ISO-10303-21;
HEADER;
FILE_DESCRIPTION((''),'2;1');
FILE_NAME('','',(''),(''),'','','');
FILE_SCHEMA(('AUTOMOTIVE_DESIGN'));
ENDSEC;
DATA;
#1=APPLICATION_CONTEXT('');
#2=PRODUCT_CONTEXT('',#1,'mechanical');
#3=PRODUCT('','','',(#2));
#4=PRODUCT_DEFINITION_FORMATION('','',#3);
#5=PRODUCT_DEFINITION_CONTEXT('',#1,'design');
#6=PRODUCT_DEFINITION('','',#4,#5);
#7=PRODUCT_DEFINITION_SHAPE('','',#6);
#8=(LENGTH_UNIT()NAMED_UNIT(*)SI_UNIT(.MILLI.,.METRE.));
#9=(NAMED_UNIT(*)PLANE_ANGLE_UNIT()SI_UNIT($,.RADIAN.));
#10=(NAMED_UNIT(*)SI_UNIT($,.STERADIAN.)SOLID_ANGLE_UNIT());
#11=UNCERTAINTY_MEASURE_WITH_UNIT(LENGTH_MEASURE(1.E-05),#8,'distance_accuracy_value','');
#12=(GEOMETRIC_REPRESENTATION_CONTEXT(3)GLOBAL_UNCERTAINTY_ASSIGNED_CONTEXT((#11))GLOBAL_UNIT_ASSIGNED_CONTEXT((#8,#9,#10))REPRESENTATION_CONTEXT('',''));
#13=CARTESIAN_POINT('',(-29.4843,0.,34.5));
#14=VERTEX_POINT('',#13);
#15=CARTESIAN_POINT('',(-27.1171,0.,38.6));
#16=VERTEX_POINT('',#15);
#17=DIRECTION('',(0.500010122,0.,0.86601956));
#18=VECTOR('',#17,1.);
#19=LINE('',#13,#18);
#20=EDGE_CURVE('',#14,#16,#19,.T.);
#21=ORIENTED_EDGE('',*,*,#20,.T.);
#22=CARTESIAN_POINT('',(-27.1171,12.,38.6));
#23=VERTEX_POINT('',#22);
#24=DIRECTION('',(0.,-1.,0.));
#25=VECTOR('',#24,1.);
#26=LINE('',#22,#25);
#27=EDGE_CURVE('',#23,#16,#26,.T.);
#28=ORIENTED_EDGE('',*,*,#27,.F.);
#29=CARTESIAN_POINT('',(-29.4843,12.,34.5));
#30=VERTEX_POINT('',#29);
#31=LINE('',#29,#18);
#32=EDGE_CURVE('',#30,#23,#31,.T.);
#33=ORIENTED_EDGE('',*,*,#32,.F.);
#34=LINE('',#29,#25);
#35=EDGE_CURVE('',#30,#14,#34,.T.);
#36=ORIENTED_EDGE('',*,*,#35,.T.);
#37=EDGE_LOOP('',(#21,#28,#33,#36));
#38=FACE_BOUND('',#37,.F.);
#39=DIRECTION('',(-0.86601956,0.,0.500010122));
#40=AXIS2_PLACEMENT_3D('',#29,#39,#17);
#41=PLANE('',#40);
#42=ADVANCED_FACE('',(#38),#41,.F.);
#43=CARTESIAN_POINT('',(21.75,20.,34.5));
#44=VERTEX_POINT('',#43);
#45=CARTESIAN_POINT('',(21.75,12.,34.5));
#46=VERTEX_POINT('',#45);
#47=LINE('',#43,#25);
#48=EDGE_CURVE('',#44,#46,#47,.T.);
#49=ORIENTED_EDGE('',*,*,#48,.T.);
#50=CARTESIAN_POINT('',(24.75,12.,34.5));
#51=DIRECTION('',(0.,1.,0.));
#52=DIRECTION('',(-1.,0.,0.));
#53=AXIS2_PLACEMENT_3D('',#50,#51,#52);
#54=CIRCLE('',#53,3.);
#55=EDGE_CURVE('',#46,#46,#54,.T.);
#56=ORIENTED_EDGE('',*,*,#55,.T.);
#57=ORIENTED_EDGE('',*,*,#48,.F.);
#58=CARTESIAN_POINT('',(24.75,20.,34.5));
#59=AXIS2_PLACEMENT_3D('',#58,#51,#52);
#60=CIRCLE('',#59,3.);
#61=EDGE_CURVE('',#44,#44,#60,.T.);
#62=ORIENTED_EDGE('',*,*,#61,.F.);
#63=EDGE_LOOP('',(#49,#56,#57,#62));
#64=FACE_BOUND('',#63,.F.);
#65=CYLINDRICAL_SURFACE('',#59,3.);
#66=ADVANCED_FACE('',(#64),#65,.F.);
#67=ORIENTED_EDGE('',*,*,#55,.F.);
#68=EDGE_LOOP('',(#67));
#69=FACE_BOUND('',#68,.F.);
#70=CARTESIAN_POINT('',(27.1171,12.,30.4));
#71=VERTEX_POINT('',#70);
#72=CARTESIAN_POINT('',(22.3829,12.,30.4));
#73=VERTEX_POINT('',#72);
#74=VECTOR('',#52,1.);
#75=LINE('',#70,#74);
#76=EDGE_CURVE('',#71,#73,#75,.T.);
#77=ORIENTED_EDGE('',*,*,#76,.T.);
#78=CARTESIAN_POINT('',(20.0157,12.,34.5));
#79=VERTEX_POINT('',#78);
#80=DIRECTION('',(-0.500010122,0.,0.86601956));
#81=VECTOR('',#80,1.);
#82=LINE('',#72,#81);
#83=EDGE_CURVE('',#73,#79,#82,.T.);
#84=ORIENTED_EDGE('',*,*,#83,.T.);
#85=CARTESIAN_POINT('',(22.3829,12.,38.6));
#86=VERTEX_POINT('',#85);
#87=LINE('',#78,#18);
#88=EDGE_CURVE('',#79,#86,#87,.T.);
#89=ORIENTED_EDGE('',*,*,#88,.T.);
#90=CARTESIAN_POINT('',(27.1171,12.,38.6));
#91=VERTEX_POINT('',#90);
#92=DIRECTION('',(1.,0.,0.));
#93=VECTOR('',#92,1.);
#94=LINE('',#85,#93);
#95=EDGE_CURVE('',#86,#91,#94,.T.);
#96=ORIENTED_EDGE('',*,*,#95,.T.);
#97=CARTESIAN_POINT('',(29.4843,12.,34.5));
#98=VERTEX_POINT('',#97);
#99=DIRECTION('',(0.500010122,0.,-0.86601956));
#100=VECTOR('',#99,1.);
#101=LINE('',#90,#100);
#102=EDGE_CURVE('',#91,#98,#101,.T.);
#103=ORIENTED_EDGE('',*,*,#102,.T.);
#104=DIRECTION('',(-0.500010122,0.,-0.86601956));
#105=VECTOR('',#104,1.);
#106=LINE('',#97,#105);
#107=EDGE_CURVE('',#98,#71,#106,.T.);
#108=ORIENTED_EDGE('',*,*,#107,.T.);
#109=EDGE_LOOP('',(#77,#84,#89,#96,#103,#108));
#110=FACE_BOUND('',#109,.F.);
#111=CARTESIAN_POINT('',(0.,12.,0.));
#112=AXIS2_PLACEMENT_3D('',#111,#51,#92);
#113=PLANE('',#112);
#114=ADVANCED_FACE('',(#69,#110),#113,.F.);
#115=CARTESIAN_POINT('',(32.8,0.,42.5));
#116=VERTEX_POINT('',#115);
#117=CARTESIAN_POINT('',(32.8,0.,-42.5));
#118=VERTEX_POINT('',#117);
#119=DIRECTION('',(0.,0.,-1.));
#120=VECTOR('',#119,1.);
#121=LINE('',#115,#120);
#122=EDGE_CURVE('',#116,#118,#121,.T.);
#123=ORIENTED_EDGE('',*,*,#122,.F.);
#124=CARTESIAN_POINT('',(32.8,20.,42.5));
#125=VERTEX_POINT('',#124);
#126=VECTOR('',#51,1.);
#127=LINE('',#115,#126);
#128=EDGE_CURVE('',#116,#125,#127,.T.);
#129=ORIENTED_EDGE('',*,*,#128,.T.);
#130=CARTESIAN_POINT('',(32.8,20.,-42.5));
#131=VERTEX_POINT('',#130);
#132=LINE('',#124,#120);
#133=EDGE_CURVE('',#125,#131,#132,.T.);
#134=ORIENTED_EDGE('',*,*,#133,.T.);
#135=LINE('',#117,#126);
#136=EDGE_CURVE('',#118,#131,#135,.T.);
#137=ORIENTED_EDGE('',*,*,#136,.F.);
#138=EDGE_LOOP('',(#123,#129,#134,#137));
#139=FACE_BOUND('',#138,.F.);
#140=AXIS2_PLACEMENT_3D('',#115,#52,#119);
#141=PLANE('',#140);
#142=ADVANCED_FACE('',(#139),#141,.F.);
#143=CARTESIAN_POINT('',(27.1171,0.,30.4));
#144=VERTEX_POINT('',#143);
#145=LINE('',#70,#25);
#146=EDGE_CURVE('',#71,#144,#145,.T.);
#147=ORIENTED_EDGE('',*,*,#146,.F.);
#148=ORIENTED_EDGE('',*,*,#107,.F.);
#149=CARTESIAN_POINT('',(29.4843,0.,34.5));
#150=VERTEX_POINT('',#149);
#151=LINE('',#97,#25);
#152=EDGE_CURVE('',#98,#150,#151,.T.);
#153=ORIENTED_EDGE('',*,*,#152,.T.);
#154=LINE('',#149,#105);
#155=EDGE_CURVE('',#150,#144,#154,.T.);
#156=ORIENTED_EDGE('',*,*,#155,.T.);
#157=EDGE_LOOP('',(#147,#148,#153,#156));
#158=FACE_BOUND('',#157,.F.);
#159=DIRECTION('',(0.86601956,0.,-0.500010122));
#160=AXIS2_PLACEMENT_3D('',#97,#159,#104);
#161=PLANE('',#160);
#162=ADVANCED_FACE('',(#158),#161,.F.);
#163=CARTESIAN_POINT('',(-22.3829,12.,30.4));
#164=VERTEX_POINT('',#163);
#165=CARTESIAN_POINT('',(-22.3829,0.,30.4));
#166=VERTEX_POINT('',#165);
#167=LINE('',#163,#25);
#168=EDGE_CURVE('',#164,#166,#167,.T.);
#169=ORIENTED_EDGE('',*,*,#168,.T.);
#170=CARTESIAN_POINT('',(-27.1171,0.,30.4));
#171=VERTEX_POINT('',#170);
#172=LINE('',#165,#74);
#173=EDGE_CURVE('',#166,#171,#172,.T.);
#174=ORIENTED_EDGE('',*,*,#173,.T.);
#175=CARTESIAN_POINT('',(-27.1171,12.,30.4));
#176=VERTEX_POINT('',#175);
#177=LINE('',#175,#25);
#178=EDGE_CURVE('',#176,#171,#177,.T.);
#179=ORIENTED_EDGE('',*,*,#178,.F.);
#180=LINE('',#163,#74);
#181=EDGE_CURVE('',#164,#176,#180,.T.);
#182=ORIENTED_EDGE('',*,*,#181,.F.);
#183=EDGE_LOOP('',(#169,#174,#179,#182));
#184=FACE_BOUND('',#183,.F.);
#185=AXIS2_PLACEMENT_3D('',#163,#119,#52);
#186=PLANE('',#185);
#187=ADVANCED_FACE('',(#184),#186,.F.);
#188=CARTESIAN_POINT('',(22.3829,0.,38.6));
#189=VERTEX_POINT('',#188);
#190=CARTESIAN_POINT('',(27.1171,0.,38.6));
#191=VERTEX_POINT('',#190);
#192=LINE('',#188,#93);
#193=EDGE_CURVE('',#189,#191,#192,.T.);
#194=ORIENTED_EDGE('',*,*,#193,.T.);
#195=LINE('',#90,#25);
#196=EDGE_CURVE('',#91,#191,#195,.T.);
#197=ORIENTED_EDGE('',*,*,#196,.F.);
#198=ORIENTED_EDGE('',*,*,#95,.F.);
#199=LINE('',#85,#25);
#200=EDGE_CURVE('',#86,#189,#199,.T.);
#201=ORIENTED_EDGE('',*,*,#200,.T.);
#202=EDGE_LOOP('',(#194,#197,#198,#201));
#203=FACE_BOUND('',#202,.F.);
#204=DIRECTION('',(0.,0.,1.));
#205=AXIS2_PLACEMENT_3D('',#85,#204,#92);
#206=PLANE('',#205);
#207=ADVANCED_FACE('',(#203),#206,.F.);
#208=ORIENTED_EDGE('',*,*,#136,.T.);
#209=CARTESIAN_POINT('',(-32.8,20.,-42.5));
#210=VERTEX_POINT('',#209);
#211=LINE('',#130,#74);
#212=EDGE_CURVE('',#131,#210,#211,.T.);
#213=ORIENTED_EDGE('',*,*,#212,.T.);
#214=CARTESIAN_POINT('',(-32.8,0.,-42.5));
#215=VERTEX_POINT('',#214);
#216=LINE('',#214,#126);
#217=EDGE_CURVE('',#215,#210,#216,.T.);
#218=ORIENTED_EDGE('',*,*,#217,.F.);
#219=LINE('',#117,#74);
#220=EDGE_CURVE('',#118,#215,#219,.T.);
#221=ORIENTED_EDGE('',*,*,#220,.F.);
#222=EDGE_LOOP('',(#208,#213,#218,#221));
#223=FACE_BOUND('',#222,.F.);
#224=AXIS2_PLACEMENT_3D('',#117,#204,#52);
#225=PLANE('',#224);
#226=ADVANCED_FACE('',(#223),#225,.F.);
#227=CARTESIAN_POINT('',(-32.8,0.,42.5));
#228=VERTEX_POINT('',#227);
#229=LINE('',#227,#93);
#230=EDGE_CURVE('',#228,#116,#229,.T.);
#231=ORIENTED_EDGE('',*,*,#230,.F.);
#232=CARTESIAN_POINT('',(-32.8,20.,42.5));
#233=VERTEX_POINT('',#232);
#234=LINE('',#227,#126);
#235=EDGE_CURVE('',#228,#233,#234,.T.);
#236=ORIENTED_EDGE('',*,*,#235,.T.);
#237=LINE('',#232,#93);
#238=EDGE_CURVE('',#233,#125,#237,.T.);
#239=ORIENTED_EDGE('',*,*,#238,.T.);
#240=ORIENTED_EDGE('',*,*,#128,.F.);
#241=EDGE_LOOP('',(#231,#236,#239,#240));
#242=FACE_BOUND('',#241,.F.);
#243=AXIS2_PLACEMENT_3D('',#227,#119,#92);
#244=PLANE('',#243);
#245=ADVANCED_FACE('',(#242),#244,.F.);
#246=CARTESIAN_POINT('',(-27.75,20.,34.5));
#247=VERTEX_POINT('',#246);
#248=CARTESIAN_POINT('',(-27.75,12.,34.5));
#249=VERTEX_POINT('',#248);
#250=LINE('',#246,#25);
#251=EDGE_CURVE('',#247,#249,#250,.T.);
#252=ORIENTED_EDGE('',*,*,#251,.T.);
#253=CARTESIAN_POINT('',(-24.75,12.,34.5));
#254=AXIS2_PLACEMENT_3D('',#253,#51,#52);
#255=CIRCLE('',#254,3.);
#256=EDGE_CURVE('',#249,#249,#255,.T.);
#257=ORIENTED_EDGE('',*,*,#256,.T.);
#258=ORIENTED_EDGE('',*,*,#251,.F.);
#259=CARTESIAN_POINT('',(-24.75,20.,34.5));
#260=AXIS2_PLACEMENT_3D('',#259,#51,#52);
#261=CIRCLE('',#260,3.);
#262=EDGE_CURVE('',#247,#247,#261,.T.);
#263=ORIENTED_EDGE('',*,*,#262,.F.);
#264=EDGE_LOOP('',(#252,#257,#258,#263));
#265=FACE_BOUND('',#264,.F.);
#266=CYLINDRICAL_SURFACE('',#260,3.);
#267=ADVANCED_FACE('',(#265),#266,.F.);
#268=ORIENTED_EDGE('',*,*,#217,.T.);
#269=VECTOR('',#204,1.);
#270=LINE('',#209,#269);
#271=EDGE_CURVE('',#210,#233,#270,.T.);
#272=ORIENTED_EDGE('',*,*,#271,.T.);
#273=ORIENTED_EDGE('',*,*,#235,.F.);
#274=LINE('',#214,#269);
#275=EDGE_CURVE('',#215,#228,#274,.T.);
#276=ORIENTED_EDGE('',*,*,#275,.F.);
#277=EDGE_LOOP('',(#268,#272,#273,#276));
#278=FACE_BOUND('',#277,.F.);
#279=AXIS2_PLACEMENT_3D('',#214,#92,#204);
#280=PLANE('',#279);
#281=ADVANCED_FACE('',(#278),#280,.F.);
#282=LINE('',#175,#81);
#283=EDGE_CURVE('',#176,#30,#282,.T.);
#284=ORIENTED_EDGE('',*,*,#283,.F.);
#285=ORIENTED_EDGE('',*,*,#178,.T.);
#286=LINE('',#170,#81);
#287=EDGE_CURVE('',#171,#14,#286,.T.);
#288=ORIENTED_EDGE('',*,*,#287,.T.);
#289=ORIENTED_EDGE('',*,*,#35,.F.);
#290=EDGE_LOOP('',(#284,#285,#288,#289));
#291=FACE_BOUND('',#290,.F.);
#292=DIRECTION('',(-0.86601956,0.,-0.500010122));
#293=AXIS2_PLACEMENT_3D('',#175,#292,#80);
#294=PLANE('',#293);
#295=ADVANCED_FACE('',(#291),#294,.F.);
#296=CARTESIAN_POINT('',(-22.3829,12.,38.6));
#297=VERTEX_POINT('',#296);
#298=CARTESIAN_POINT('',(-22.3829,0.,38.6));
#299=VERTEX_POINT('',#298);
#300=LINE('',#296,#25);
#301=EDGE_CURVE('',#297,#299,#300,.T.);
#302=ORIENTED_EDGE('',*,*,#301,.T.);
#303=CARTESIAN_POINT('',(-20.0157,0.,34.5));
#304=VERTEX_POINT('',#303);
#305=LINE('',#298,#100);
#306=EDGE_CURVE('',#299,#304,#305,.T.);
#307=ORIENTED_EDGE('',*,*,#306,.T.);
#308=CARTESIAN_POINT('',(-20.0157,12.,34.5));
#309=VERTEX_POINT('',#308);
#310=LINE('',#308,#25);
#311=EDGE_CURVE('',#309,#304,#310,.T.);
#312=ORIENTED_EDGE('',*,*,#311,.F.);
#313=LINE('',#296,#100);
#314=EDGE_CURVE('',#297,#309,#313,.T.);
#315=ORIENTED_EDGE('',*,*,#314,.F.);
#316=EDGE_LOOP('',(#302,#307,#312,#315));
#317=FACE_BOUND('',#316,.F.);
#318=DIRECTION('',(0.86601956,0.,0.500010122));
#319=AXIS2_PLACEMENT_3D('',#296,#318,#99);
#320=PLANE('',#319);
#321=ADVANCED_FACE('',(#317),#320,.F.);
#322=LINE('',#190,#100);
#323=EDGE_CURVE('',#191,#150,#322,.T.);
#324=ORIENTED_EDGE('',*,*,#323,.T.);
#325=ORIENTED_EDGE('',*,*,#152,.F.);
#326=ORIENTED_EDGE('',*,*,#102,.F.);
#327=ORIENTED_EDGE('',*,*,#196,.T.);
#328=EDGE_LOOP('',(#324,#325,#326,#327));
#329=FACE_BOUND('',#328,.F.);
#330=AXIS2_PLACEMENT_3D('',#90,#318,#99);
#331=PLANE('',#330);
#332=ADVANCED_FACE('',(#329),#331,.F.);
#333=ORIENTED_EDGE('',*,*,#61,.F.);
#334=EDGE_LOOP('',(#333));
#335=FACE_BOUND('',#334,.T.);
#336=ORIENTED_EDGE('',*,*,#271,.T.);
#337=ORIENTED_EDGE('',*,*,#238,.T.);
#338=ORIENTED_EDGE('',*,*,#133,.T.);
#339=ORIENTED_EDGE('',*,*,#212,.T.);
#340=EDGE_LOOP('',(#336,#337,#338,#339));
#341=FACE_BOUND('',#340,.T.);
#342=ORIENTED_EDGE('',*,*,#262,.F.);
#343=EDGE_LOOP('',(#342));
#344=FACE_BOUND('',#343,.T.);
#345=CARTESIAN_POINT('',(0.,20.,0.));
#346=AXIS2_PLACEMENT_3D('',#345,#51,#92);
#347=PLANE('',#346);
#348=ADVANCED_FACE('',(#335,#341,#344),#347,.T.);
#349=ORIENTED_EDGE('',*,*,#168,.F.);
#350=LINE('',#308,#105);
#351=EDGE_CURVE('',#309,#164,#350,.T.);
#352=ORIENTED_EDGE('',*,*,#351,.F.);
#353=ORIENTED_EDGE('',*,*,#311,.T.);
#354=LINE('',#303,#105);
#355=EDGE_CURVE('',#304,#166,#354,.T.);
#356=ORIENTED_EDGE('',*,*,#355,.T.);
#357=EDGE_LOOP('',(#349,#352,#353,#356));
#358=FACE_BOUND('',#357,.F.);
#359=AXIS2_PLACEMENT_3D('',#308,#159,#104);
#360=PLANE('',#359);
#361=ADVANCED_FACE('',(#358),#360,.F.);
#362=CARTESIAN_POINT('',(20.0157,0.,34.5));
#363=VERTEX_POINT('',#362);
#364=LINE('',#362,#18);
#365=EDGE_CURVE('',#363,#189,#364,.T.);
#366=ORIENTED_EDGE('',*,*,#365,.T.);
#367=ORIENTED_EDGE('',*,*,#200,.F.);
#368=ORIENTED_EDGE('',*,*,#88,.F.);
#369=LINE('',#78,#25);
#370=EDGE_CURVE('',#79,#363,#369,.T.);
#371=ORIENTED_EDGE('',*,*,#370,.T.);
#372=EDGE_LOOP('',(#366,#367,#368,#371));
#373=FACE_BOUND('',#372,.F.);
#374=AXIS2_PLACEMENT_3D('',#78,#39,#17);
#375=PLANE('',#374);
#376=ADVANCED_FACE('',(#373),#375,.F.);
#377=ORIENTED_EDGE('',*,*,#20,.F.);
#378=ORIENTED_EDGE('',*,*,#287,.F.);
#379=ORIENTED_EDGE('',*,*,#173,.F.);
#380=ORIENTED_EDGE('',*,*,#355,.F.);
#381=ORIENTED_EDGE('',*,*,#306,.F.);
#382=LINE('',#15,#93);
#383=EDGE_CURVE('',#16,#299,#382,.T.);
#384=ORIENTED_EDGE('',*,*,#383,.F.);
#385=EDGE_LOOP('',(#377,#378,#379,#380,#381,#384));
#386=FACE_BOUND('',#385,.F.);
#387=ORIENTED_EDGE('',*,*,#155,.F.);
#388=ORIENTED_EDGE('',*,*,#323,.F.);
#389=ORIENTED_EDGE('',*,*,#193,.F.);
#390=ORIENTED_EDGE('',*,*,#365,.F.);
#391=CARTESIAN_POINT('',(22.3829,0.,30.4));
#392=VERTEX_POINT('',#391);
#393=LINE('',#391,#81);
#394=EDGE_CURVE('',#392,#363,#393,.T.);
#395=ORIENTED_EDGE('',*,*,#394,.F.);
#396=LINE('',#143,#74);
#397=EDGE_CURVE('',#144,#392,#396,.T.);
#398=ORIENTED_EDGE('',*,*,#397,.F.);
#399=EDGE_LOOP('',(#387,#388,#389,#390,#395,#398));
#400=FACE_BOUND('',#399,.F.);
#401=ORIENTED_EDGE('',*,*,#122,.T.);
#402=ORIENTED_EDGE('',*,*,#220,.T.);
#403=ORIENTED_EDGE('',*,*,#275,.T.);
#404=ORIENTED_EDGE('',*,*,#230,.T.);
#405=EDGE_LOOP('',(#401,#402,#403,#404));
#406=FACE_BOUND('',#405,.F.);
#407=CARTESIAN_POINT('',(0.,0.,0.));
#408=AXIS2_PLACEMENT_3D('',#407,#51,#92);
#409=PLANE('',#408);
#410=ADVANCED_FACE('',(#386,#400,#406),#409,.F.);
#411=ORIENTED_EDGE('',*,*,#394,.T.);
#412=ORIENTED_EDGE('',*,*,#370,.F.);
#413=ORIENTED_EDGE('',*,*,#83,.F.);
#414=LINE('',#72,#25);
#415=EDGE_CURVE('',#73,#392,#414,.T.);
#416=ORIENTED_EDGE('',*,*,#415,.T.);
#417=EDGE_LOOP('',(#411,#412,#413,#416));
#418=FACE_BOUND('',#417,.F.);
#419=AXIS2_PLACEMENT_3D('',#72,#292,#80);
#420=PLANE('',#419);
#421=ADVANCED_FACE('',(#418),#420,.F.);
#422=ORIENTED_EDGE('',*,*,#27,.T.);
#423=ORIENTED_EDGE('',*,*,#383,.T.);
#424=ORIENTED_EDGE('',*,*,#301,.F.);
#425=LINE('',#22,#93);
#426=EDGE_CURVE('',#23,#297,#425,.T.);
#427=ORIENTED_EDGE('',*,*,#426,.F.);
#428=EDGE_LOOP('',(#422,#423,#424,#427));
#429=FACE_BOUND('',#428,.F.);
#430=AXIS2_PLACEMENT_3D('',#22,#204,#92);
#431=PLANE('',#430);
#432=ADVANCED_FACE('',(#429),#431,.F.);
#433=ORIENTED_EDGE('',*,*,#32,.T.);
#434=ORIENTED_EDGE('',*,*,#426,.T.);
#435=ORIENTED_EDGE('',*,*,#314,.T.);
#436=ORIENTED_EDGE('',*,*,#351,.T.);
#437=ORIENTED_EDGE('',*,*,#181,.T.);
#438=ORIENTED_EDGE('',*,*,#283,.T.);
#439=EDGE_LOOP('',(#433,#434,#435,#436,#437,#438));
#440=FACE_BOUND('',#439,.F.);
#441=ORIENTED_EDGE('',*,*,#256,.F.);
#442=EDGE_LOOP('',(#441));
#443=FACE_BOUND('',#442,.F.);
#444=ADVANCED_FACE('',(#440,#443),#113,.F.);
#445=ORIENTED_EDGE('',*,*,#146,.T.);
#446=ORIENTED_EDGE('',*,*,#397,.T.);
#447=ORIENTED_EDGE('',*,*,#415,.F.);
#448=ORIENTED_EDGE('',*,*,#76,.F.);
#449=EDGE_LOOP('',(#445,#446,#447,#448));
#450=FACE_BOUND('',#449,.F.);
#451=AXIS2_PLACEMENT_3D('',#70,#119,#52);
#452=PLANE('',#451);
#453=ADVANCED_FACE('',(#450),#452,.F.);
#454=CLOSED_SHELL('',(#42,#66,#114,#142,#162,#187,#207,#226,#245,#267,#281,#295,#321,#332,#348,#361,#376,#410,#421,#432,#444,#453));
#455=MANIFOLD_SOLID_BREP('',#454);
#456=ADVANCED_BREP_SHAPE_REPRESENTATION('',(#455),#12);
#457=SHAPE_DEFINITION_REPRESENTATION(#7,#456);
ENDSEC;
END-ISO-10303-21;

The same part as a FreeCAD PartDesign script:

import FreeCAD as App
import Part
import Sketcher
from FreeCAD import Vector
Q = App.Units.Quantity


def add_polygon(sketch, points):
    """Adds a closed chain of lines whose ends are joined by coincident constraints."""
    first, n = sketch.GeometryCount, len(points)
    for a, b in zip(points, points[1:] + points[:1]):
        sketch.addGeometry(Part.LineSegment(App.Vector(*a, 0), App.Vector(*b, 0)), False)
    for i in range(n):
        sketch.addConstraint(Sketcher.Constraint("Coincident", first + i, 2, first + (i + 1) % n, 1))

doc = App.newDocument("Part")
params = doc.addObject("Spreadsheet::Sheet", "Params")
for row, (alias, value) in enumerate([
    ("sketch1_height", "85 mm"),
    ("sketch1_width", "65.6 mm"),
    ("pad1_length", "20 mm"),
    ("sketch2_diameter", "6 mm"),
    ("pocket1_length", "20 mm"),
    ("pocket2_length", "12 mm"),
], start=1):
    params.set(f"A{row}", alias)
    params.set(f"B{row}", "=" + value)
    params.setAlias(f"B{row}", alias)

body = doc.addObject("PartDesign::Body", "Body")

sketch1 = doc.addObject("Sketcher::SketchObject", "Sketch")
body.addObject(sketch1)
sketch1.AttachmentSupport = (doc.XZ_Plane, [""])
sketch1.MapMode = "FlatFace"
add_polygon(sketch1, [(33, 42), (33, -42), (-33, -42), (-33, 42)])
sketch1.addConstraint(Sketcher.Constraint("Vertical", 0))
sketch1.addConstraint(Sketcher.Constraint("Horizontal", 1))
sketch1.addConstraint(Sketcher.Constraint("Vertical", 2))
sketch1.addConstraint(Sketcher.Constraint("Horizontal", 3))
sketch1.addConstraint(Sketcher.Constraint("Symmetric", 0, 2, 2, 2, -1, 1))
sketch1.addConstraint(Sketcher.Constraint("DistanceY", 0, 2, 0, 1, Q("85 mm")))
sketch1.addConstraint(Sketcher.Constraint("DistanceX", 1, 2, 1, 1, Q("65.6 mm")))
sketch1.setExpression("Constraints[9]", "Params.sketch1_height")
sketch1.setExpression("Constraints[10]", "Params.sketch1_width")
pad1 = doc.addObject("PartDesign::Pad", "Pad")
body.addObject(pad1)
pad1.Profile = sketch1
pad1.setExpression("Length", "Params.pad1_length")
pad1.Reversed = True

sketch2 = doc.addObject("Sketcher::SketchObject", "Sketch001")
body.addObject(sketch2)
sketch2.AttachmentSupport = (doc.XZ_Plane, [""])
sketch2.MapMode = "FlatFace"
sketch2.AttachmentOffset = App.Placement(Vector(0, 0, -20), App.Rotation())
sketch2.addGeometry(Part.Circle(Vector(-24.8, 34.5, 0), Vector(0, 0, 1), 3), False)
sketch2.addGeometry(Part.Circle(Vector(24.8, 34.5, 0), Vector(0, 0, 1), 3), False)
sketch2.addConstraint(Sketcher.Constraint("Equal", 0, 1))
sketch2.addConstraint(Sketcher.Constraint("Symmetric", 0, 3, 1, 3, -2))
sketch2.addConstraint(Sketcher.Constraint("Diameter", 0, Q("6 mm")))
sketch2.addConstraint(Sketcher.Constraint("DistanceX", 0, 3, -1, 1, Q("24.75 mm")))
sketch2.addConstraint(Sketcher.Constraint("DistanceY", -1, 1, 0, 3, Q("34.5 mm")))
sketch2.setExpression("Constraints[2]", "Params.sketch2_diameter")
pocket1 = doc.addObject("PartDesign::Pocket", "Pocket")
body.addObject(pocket1)
pocket1.Profile = sketch2
pocket1.setExpression("Length", "Params.pocket1_length")
pocket1.Reversed = True

sketch3 = doc.addObject("Sketcher::SketchObject", "Sketch002")
body.addObject(sketch3)
sketch3.AttachmentSupport = (doc.XZ_Plane, [""])
sketch3.MapMode = "FlatFace"
sketch3.AttachmentOffset = App.Placement(Vector(0, 0, -12), App.Rotation())
add_polygon(sketch3, [(22.4, 30.4), (20, 34.5), (22.4, 38.6), (27.1, 38.6), (29.5, 34.5), (27.1, 30.4)])
add_polygon(sketch3, [(-22.4, 38.6), (-20, 34.5), (-22.4, 30.4), (-27.1, 30.4), (-29.5, 34.5), (-27.1, 38.6)])
sketch3.addConstraint(Sketcher.Constraint("Horizontal", 2))
sketch3.addConstraint(Sketcher.Constraint("Horizontal", 5))
sketch3.addConstraint(Sketcher.Constraint("Horizontal", 8))
sketch3.addConstraint(Sketcher.Constraint("Horizontal", 11))
sketch3.addConstraint(Sketcher.Constraint("Symmetric", 0, 2, 6, 2, -2))
sketch3.addConstraint(Sketcher.Constraint("Symmetric", 5, 2, 7, 2, -2))
sketch3.addConstraint(Sketcher.Constraint("Symmetric", 3, 2, 9, 2, -2))
sketch3.addConstraint(Sketcher.Constraint("Symmetric", 2, 2, 10, 2, -2))
sketch3.addConstraint(Sketcher.Constraint("Parallel", 0, 3))
sketch3.addConstraint(Sketcher.Constraint("Parallel", 1, 4))
sketch3.addConstraint(Sketcher.Constraint("Parallel", 3, 6))
sketch3.addConstraint(Sketcher.Constraint("Parallel", 4, 7))
sketch3.addConstraint(Sketcher.Constraint("Parallel", 6, 9))
sketch3.addConstraint(Sketcher.Constraint("Horizontal", 0, 2, 3, 2))
sketch3.addConstraint(Sketcher.Constraint("Vertical", 2, 2, 4, 2))
sketch3.addConstraint(Sketcher.Constraint("DistanceY", 0, 2, 1, 2, Q("4.1 mm")))
sketch3.addConstraint(Sketcher.Constraint("Angle", 0, Q("120.0007 deg")))
sketch3.addConstraint(Sketcher.Constraint("DistanceY", -1, 1, 0, 2, Q("34.5 mm")))
sketch3.addConstraint(Sketcher.Constraint("DistanceX", 7, 2, 4, 2, Q("49.5 mm")))
sketch3.addConstraint(Sketcher.Constraint("DistanceX", 2, 1, 2, 2, Q("4.7342 mm")))
pocket2 = doc.addObject("PartDesign::Pocket", "Pocket001")
body.addObject(pocket2)
pocket2.Profile = sketch3
pocket2.setExpression("Length", "Params.pocket2_length")
pocket2.Reversed = True

doc.recompute()
